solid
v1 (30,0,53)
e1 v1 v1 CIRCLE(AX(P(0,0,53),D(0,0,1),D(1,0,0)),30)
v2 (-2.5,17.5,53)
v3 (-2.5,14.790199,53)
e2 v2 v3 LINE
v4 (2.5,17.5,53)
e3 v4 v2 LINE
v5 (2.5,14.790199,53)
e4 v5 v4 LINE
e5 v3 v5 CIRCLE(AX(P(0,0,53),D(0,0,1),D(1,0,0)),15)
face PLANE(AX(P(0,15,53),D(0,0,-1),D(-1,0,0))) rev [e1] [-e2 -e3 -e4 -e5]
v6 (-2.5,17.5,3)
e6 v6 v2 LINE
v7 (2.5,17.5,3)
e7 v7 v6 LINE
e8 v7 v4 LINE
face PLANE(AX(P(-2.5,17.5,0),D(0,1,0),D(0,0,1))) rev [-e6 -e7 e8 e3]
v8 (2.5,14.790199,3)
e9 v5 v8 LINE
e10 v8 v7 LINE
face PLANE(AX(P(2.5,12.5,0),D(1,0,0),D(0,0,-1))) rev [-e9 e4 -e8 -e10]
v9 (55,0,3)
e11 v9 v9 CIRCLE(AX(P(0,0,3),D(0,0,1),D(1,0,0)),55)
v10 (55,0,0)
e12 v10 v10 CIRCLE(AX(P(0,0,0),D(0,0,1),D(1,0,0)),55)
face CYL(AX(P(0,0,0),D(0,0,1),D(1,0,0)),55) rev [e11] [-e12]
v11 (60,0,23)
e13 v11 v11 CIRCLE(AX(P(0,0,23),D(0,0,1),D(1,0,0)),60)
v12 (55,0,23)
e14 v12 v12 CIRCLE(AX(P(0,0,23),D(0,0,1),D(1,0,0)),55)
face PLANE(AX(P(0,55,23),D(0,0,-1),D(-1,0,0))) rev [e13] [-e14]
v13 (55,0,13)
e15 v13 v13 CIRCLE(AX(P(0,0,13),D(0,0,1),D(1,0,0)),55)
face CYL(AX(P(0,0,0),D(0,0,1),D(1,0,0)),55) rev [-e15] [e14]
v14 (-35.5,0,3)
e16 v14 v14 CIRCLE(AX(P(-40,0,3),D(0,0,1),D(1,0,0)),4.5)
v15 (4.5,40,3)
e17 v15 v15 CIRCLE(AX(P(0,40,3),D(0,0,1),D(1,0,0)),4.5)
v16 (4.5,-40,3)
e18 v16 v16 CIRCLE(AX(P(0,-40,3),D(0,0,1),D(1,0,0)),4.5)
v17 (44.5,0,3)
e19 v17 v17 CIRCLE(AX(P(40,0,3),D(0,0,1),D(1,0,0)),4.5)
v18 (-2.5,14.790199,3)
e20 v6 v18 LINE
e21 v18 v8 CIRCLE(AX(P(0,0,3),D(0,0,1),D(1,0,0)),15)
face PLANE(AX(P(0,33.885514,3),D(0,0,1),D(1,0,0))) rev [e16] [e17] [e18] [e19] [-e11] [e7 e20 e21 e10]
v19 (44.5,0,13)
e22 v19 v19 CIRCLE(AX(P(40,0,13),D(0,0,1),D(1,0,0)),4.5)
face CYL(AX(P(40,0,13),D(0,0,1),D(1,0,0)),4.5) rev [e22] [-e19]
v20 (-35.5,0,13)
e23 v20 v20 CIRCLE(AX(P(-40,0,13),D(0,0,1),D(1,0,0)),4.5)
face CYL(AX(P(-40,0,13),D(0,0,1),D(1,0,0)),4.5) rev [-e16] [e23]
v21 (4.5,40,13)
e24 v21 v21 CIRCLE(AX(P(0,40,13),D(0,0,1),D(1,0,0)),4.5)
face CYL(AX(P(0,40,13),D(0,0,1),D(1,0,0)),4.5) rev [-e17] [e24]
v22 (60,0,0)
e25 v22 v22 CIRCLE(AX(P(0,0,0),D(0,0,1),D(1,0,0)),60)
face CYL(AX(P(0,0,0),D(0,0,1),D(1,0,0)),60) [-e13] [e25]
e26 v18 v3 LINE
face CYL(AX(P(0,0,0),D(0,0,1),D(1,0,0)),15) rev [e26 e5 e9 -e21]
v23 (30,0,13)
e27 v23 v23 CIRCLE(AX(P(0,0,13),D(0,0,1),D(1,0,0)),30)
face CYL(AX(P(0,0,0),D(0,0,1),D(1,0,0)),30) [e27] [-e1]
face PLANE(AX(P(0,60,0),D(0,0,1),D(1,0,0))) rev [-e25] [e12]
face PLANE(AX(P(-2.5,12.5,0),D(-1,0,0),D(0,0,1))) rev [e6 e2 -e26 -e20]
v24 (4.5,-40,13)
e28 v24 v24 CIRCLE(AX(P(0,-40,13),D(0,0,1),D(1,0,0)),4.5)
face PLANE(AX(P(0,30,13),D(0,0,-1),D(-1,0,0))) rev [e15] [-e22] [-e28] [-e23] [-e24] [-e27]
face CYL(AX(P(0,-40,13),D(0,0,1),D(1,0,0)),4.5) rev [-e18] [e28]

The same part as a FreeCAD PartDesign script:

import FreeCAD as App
import Part
import Sketcher
Q = App.Units.Quantity


def add_polygon(sketch, points):
    """Adds a closed chain of lines whose ends are joined by coincident constraints."""
    first, n = sketch.GeometryCount, len(points)
    for a, b in zip(points, points[1:] + points[:1]):
        sketch.addGeometry(Part.LineSegment(App.Vector(*a, 0), App.Vector(*b, 0)), False)
    for i in range(n):
        sketch.addConstraint(Sketcher.Constraint("Coincident", first + i, 2, first + (i + 1) % n, 1))

doc = App.newDocument("Part")
body = doc.addObject("PartDesign::Body", "Body")

sketch1 = body.newObject("Sketcher::SketchObject", "Sketch")
sketch1.AttachmentSupport = (doc.getObject("YZ_Plane"), [""])
sketch1.MapMode = "FlatFace"
add_polygon(sketch1, [(15, 53), (15, 3), (55, 3), (55, 0), (60, 0), (60, 23), (55, 23), (55, 13), (30, 13), (30, 53)])
sketch1.addConstraint([
    Sketcher.Constraint("Vertical", 0),
    Sketcher.Constraint("Horizontal", 1),
    Sketcher.Constraint("Vertical", 2),
    Sketcher.Constraint("Horizontal", 3),
    Sketcher.Constraint("Vertical", 4),
    Sketcher.Constraint("Horizontal", 5),
    Sketcher.Constraint("Vertical", 6),
    Sketcher.Constraint("Horizontal", 7),
    Sketcher.Constraint("Vertical", 8),
    Sketcher.Constraint("Horizontal", 9),
    Sketcher.Constraint("PointOnObject", 2, 2, -1),
    Sketcher.Constraint("Vertical", 2, 2, 5, 2),
    Sketcher.Constraint("Equal", 1, 8),
    Sketcher.Constraint("DistanceX", 1, 1, 1, 2, Q("40 mm")),
    Sketcher.Constraint("DistanceX", 3, 1, 3, 2, Q("5 mm")),
    Sketcher.Constraint("DistanceX", 7, 2, 7, 1, Q("25 mm")),
    Sketcher.Constraint("DistanceY", 0, 2, 0, 1, Q("50 mm")),
    Sketcher.Constraint("DistanceY", 2, 2, 2, 1, Q("3 mm")),
    Sketcher.Constraint("DistanceY", 4, 1, 4, 2, Q("23 mm")),
    Sketcher.Constraint("DistanceX", -1, 1, 0, 2, Q("15 mm")),
])
revolution = body.newObject("PartDesign::Revolution", "Revolution")
revolution.Profile = sketch1
revolution.ReferenceAxis = (sketch1, ["V_Axis"])
revolution.Angle = 360

sketch2 = body.newObject("Sketcher::SketchObject", "Sketch001")
sketch2.AttachmentSupport = (doc.getObject("XY_Plane"), [""])
sketch2.MapMode = "FlatFace"
sketch2.AttachmentOffset = App.Placement(App.Vector(0, 0, 53), App.Rotation())
add_polygon(sketch2, [(-2, 18), (-2, 12), (2, 12), (2, 18)])
sketch2.addConstraint([
    Sketcher.Constraint("Vertical", 0),
    Sketcher.Constraint("Horizontal", 1),
    Sketcher.Constraint("Vertical", 2),
    Sketcher.Constraint("Horizontal", 3),
    Sketcher.Constraint("Equal", 3, 0),
    Sketcher.Constraint("DistanceX", 1, 1, 1, 2, Q("5 mm")),
    Sketcher.Constraint("DistanceX", 0, 2, -1, 1, Q("2.5 mm")),
    Sketcher.Constraint("DistanceY", -1, 1, 0, 2, Q("12.5 mm")),
])
pocket1 = body.newObject("PartDesign::Pocket", "Pocket")
pocket1.Profile = sketch2
pocket1.Type = "ThroughAll"

sketch3 = body.newObject("Sketcher::SketchObject", "Sketch002")
sketch3.AttachmentSupport = (doc.getObject("XY_Plane"), [""])
sketch3.MapMode = "FlatFace"
sketch3.AttachmentOffset = App.Placement(App.Vector(0, 0, 13), App.Rotation())
sketch3.addGeometry(Part.Circle(App.Vector(0, 40, 0), App.Vector(0, 0, 1), 4.5), False)
sketch3.addConstraint([
    Sketcher.Constraint("PointOnObject", 0, 3, -2),
    Sketcher.Constraint("Diameter", 0, Q("9 mm")),
    Sketcher.Constraint("DistanceY", -1, 1, 0, 3, Q("40 mm")),
])
doc.recompute()
hole = body.newObject("PartDesign::Hole", "Hole")
hole.Profile = sketch3
hole.ThreadType = "None"
hole.Diameter = 9
hole.DepthType = "ThroughAll"
doc.recompute()

polarpattern = body.newObject("PartDesign::PolarPattern", "PolarPattern")
polarpattern.Originals = [hole]
polarpattern.Axis = (doc.getObject("Z_Axis"), [""])
polarpattern.Angle = 360
polarpattern.Occurrences = 4
body.Tip = polarpattern

doc.recompute()
